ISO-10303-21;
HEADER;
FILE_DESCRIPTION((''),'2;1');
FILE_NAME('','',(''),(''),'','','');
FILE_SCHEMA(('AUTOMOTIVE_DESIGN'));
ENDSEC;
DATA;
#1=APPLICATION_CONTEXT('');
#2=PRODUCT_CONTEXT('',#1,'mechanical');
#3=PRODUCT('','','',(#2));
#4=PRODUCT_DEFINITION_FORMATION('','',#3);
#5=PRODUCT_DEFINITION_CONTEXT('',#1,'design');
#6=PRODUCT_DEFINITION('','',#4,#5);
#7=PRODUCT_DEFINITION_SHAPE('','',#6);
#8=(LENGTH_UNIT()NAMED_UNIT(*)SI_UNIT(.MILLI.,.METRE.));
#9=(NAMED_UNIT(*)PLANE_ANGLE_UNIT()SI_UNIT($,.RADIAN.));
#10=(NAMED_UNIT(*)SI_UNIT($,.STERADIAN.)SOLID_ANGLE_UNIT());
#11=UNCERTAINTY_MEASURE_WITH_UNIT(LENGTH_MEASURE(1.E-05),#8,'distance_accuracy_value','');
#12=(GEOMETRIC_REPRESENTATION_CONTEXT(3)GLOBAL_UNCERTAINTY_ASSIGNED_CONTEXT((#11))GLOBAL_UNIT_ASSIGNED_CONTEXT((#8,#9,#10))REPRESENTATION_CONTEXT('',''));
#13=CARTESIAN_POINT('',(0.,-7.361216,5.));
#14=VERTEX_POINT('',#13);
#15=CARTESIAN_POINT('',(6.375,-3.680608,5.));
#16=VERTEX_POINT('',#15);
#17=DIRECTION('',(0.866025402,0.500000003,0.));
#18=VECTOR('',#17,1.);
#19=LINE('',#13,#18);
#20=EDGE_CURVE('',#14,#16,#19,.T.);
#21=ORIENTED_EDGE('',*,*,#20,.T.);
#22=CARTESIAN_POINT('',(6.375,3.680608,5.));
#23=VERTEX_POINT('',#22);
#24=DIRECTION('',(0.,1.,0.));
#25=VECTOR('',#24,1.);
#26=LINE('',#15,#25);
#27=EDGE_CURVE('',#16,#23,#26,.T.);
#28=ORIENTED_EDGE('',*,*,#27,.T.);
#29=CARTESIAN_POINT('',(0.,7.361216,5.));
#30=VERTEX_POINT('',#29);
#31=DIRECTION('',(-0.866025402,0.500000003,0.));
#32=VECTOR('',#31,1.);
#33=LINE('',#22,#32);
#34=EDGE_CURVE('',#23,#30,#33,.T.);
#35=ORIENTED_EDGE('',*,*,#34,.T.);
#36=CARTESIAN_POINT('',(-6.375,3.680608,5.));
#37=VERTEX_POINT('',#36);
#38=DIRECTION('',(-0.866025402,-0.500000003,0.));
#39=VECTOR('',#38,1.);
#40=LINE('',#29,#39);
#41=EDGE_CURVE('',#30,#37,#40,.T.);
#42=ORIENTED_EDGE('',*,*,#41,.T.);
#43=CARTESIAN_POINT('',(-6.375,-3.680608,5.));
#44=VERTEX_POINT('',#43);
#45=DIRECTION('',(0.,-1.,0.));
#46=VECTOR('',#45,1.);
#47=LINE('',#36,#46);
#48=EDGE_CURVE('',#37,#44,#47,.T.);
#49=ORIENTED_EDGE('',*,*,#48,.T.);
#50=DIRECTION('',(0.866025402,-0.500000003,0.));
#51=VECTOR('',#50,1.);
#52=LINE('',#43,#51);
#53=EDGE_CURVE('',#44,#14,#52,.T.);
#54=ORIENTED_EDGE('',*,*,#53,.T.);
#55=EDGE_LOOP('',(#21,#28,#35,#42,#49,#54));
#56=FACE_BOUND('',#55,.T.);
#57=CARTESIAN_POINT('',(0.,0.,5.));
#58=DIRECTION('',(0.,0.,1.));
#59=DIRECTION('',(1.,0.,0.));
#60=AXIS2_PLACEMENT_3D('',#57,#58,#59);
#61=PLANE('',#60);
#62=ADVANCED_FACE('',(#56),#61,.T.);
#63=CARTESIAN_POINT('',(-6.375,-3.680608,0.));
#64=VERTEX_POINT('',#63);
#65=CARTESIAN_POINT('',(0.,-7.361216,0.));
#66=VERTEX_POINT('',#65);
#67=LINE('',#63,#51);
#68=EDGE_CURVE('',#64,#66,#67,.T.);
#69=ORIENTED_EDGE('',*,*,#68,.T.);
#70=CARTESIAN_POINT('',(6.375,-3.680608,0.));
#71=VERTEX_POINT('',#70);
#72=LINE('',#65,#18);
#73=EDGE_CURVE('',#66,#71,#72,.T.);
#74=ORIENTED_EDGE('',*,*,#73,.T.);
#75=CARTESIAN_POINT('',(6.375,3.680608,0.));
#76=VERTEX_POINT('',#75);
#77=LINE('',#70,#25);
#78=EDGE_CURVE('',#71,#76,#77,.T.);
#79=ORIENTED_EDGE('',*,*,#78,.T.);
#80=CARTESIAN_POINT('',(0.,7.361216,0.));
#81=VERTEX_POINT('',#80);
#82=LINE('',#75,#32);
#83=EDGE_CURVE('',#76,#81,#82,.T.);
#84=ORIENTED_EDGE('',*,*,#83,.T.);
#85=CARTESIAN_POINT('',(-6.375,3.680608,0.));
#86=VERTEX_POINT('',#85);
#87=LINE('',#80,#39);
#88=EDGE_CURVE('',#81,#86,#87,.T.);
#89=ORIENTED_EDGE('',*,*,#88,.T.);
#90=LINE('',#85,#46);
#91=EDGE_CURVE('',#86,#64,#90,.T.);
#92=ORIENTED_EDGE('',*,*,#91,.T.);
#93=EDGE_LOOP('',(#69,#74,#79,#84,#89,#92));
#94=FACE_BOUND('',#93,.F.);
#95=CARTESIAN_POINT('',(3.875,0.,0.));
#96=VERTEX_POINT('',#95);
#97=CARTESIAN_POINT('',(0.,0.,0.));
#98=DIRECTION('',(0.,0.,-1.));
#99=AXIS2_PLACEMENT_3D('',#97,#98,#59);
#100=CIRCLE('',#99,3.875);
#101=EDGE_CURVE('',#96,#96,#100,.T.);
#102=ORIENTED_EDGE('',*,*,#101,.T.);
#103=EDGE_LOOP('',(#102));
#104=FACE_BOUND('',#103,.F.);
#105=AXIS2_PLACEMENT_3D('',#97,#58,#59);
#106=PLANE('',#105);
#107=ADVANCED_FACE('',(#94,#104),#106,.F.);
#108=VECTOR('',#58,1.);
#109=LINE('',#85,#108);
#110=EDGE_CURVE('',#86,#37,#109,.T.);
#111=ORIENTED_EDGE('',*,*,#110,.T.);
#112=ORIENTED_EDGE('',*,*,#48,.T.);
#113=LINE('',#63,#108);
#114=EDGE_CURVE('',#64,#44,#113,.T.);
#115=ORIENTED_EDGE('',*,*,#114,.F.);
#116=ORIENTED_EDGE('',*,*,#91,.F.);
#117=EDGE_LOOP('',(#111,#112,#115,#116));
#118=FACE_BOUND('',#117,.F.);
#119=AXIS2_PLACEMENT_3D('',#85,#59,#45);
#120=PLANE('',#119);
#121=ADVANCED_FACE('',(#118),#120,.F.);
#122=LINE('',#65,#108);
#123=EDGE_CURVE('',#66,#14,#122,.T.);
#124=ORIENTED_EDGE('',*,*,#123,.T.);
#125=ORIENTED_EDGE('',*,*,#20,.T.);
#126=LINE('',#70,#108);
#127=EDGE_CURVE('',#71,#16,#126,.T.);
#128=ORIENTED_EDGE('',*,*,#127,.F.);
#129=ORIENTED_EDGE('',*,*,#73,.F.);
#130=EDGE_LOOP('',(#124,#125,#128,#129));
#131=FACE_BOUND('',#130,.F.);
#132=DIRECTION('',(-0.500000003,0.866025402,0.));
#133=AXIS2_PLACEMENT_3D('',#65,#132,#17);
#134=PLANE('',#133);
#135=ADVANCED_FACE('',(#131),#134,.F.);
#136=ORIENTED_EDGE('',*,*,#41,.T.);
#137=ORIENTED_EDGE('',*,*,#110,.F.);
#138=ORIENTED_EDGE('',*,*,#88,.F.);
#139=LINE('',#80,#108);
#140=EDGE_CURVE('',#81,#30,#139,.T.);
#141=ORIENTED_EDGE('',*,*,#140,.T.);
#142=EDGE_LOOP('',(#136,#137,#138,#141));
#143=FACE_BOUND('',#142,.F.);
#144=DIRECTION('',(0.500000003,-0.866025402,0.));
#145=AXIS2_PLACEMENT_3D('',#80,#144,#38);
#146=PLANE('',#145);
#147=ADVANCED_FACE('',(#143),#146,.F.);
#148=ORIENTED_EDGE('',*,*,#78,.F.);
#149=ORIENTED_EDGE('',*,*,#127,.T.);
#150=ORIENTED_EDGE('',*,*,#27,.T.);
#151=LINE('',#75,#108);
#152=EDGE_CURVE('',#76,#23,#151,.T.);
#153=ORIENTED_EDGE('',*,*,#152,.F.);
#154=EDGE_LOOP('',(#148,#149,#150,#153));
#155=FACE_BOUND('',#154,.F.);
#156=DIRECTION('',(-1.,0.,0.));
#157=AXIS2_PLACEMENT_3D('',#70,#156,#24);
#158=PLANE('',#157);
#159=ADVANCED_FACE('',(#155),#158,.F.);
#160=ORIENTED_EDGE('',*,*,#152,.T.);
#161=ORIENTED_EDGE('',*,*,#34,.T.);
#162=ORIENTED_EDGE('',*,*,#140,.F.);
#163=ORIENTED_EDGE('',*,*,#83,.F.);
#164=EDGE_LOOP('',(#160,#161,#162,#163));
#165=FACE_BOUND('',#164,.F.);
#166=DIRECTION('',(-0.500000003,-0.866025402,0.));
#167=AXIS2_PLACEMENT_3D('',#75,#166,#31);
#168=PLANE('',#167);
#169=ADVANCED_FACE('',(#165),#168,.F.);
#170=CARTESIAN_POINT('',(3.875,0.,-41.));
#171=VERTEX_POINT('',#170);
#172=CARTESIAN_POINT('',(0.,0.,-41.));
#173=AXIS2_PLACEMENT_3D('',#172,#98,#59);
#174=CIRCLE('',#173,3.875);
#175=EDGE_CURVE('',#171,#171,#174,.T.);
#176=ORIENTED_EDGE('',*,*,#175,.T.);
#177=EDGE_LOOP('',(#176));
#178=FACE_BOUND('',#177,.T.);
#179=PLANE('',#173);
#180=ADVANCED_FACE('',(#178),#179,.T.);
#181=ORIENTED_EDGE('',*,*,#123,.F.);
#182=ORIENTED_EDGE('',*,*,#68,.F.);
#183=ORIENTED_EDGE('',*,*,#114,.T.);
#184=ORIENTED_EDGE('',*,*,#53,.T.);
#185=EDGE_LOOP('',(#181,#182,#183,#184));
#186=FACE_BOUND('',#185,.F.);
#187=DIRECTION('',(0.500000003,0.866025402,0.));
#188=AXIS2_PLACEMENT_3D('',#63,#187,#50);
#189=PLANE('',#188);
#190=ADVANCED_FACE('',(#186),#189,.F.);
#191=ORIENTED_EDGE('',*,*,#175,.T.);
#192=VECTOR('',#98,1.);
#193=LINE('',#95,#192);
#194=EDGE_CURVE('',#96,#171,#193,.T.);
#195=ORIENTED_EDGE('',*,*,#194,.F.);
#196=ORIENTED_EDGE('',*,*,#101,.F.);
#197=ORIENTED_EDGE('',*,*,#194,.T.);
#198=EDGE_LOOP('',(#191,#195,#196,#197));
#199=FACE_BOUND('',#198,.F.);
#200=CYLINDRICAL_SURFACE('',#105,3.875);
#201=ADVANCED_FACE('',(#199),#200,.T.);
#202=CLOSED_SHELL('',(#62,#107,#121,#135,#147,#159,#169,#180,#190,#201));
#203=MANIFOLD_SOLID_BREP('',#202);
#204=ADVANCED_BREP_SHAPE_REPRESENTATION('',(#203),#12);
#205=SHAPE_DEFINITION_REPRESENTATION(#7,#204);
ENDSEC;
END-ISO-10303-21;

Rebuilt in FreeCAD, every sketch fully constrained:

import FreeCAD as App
import Part
import Sketcher
from FreeCAD import Vector
Q = App.Units.Quantity

doc = App.newDocument("Part")
body = doc.addObject("PartDesign::Body", "Body")

# Sketch on XY plane
sketch1 = body.newObject("Sketcher::SketchObject", "Sketch")
sketch1.AttachmentSupport = (doc.getObject("XY_Plane"), [""])
sketch1.MapMode = "FlatFace"
sketch1.addGeometry(Part.LineSegment(Vector(6, -4, 0), Vector(6, 4, 0)), False)
sketch1.addGeometry(Part.LineSegment(Vector(6, 4, 0), Vector(0, 7, 0)), False)
sketch1.addGeometry(Part.LineSegment(Vector(0, 7, 0), Vector(-6, 4, 0)), False)
sketch1.addGeometry(Part.LineSegment(Vector(-6, 4, 0), Vector(-6, -4, 0)), False)
sketch1.addGeometry(Part.LineSegment(Vector(-6, -4, 0), Vector(0, -7, 0)), False)
sketch1.addGeometry(Part.LineSegment(Vector(0, -7, 0), Vector(6, -4, 0)), False)
sketch1.addConstraint(Sketcher.Constraint("Coincident", 0, 2, 1, 1))
sketch1.addConstraint(Sketcher.Constraint("Coincident", 1, 2, 2, 1))
sketch1.addConstraint(Sketcher.Constraint("Coincident", 2, 2, 3, 1))
sketch1.addConstraint(Sketcher.Constraint("Coincident", 3, 2, 4, 1))
sketch1.addConstraint(Sketcher.Constraint("Coincident", 4, 2, 5, 1))
sketch1.addConstraint(Sketcher.Constraint("Coincident", 5, 2, 0, 1))
sketch1.addConstraint(Sketcher.Constraint("Vertical", 0))
sketch1.addConstraint(Sketcher.Constraint("Vertical", 3))
sketch1.addConstraint(Sketcher.Constraint("Symmetric", 0, 2, 3, 2, -1, 1))
sketch1.addConstraint(Sketcher.Constraint("Symmetric", 1, 2, 4, 2, -1, 1))
sketch1.addConstraint(Sketcher.Constraint("PointOnObject", 1, 2, -2))
sketch1.addConstraint(Sketcher.Constraint("Parallel", 2, 5))
sketch1.addConstraint(Sketcher.Constraint("Horizontal", 0, 2, 2, 2))
sketch1.addConstraint(Sketcher.Constraint("Angle", 1, Q("150 deg")))
sketch1.addConstraint(Sketcher.Constraint("DistanceX", 2, 2, 0, 2, 12.75))
sketch1.addConstraint(Sketcher.Constraint("DistanceY", 0, 1, 0, 2, 7.361216))
pad1 = body.newObject("PartDesign::Pad", "Pad")
pad1.Profile = sketch1
pad1.Length = 5

# Sketch on XY plane
sketch2 = body.newObject("Sketcher::SketchObject", "Sketch001")
sketch2.AttachmentSupport = (doc.getObject("XY_Plane"), [""])
sketch2.MapMode = "FlatFace"
sketch2.addGeometry(Part.Circle(Vector(0, 0, 0), Vector(0, 0, 1), 3.9), False)
sketch2.addConstraint(Sketcher.Constraint("Coincident", 0, 3, -1, 1))
sketch2.addConstraint(Sketcher.Constraint("Diameter", 0, 7.75))
pad2 = body.newObject("PartDesign::Pad", "Pad001")
pad2.Profile = sketch2
pad2.Length = 41
pad2.Reversed = True

doc.recompute()
